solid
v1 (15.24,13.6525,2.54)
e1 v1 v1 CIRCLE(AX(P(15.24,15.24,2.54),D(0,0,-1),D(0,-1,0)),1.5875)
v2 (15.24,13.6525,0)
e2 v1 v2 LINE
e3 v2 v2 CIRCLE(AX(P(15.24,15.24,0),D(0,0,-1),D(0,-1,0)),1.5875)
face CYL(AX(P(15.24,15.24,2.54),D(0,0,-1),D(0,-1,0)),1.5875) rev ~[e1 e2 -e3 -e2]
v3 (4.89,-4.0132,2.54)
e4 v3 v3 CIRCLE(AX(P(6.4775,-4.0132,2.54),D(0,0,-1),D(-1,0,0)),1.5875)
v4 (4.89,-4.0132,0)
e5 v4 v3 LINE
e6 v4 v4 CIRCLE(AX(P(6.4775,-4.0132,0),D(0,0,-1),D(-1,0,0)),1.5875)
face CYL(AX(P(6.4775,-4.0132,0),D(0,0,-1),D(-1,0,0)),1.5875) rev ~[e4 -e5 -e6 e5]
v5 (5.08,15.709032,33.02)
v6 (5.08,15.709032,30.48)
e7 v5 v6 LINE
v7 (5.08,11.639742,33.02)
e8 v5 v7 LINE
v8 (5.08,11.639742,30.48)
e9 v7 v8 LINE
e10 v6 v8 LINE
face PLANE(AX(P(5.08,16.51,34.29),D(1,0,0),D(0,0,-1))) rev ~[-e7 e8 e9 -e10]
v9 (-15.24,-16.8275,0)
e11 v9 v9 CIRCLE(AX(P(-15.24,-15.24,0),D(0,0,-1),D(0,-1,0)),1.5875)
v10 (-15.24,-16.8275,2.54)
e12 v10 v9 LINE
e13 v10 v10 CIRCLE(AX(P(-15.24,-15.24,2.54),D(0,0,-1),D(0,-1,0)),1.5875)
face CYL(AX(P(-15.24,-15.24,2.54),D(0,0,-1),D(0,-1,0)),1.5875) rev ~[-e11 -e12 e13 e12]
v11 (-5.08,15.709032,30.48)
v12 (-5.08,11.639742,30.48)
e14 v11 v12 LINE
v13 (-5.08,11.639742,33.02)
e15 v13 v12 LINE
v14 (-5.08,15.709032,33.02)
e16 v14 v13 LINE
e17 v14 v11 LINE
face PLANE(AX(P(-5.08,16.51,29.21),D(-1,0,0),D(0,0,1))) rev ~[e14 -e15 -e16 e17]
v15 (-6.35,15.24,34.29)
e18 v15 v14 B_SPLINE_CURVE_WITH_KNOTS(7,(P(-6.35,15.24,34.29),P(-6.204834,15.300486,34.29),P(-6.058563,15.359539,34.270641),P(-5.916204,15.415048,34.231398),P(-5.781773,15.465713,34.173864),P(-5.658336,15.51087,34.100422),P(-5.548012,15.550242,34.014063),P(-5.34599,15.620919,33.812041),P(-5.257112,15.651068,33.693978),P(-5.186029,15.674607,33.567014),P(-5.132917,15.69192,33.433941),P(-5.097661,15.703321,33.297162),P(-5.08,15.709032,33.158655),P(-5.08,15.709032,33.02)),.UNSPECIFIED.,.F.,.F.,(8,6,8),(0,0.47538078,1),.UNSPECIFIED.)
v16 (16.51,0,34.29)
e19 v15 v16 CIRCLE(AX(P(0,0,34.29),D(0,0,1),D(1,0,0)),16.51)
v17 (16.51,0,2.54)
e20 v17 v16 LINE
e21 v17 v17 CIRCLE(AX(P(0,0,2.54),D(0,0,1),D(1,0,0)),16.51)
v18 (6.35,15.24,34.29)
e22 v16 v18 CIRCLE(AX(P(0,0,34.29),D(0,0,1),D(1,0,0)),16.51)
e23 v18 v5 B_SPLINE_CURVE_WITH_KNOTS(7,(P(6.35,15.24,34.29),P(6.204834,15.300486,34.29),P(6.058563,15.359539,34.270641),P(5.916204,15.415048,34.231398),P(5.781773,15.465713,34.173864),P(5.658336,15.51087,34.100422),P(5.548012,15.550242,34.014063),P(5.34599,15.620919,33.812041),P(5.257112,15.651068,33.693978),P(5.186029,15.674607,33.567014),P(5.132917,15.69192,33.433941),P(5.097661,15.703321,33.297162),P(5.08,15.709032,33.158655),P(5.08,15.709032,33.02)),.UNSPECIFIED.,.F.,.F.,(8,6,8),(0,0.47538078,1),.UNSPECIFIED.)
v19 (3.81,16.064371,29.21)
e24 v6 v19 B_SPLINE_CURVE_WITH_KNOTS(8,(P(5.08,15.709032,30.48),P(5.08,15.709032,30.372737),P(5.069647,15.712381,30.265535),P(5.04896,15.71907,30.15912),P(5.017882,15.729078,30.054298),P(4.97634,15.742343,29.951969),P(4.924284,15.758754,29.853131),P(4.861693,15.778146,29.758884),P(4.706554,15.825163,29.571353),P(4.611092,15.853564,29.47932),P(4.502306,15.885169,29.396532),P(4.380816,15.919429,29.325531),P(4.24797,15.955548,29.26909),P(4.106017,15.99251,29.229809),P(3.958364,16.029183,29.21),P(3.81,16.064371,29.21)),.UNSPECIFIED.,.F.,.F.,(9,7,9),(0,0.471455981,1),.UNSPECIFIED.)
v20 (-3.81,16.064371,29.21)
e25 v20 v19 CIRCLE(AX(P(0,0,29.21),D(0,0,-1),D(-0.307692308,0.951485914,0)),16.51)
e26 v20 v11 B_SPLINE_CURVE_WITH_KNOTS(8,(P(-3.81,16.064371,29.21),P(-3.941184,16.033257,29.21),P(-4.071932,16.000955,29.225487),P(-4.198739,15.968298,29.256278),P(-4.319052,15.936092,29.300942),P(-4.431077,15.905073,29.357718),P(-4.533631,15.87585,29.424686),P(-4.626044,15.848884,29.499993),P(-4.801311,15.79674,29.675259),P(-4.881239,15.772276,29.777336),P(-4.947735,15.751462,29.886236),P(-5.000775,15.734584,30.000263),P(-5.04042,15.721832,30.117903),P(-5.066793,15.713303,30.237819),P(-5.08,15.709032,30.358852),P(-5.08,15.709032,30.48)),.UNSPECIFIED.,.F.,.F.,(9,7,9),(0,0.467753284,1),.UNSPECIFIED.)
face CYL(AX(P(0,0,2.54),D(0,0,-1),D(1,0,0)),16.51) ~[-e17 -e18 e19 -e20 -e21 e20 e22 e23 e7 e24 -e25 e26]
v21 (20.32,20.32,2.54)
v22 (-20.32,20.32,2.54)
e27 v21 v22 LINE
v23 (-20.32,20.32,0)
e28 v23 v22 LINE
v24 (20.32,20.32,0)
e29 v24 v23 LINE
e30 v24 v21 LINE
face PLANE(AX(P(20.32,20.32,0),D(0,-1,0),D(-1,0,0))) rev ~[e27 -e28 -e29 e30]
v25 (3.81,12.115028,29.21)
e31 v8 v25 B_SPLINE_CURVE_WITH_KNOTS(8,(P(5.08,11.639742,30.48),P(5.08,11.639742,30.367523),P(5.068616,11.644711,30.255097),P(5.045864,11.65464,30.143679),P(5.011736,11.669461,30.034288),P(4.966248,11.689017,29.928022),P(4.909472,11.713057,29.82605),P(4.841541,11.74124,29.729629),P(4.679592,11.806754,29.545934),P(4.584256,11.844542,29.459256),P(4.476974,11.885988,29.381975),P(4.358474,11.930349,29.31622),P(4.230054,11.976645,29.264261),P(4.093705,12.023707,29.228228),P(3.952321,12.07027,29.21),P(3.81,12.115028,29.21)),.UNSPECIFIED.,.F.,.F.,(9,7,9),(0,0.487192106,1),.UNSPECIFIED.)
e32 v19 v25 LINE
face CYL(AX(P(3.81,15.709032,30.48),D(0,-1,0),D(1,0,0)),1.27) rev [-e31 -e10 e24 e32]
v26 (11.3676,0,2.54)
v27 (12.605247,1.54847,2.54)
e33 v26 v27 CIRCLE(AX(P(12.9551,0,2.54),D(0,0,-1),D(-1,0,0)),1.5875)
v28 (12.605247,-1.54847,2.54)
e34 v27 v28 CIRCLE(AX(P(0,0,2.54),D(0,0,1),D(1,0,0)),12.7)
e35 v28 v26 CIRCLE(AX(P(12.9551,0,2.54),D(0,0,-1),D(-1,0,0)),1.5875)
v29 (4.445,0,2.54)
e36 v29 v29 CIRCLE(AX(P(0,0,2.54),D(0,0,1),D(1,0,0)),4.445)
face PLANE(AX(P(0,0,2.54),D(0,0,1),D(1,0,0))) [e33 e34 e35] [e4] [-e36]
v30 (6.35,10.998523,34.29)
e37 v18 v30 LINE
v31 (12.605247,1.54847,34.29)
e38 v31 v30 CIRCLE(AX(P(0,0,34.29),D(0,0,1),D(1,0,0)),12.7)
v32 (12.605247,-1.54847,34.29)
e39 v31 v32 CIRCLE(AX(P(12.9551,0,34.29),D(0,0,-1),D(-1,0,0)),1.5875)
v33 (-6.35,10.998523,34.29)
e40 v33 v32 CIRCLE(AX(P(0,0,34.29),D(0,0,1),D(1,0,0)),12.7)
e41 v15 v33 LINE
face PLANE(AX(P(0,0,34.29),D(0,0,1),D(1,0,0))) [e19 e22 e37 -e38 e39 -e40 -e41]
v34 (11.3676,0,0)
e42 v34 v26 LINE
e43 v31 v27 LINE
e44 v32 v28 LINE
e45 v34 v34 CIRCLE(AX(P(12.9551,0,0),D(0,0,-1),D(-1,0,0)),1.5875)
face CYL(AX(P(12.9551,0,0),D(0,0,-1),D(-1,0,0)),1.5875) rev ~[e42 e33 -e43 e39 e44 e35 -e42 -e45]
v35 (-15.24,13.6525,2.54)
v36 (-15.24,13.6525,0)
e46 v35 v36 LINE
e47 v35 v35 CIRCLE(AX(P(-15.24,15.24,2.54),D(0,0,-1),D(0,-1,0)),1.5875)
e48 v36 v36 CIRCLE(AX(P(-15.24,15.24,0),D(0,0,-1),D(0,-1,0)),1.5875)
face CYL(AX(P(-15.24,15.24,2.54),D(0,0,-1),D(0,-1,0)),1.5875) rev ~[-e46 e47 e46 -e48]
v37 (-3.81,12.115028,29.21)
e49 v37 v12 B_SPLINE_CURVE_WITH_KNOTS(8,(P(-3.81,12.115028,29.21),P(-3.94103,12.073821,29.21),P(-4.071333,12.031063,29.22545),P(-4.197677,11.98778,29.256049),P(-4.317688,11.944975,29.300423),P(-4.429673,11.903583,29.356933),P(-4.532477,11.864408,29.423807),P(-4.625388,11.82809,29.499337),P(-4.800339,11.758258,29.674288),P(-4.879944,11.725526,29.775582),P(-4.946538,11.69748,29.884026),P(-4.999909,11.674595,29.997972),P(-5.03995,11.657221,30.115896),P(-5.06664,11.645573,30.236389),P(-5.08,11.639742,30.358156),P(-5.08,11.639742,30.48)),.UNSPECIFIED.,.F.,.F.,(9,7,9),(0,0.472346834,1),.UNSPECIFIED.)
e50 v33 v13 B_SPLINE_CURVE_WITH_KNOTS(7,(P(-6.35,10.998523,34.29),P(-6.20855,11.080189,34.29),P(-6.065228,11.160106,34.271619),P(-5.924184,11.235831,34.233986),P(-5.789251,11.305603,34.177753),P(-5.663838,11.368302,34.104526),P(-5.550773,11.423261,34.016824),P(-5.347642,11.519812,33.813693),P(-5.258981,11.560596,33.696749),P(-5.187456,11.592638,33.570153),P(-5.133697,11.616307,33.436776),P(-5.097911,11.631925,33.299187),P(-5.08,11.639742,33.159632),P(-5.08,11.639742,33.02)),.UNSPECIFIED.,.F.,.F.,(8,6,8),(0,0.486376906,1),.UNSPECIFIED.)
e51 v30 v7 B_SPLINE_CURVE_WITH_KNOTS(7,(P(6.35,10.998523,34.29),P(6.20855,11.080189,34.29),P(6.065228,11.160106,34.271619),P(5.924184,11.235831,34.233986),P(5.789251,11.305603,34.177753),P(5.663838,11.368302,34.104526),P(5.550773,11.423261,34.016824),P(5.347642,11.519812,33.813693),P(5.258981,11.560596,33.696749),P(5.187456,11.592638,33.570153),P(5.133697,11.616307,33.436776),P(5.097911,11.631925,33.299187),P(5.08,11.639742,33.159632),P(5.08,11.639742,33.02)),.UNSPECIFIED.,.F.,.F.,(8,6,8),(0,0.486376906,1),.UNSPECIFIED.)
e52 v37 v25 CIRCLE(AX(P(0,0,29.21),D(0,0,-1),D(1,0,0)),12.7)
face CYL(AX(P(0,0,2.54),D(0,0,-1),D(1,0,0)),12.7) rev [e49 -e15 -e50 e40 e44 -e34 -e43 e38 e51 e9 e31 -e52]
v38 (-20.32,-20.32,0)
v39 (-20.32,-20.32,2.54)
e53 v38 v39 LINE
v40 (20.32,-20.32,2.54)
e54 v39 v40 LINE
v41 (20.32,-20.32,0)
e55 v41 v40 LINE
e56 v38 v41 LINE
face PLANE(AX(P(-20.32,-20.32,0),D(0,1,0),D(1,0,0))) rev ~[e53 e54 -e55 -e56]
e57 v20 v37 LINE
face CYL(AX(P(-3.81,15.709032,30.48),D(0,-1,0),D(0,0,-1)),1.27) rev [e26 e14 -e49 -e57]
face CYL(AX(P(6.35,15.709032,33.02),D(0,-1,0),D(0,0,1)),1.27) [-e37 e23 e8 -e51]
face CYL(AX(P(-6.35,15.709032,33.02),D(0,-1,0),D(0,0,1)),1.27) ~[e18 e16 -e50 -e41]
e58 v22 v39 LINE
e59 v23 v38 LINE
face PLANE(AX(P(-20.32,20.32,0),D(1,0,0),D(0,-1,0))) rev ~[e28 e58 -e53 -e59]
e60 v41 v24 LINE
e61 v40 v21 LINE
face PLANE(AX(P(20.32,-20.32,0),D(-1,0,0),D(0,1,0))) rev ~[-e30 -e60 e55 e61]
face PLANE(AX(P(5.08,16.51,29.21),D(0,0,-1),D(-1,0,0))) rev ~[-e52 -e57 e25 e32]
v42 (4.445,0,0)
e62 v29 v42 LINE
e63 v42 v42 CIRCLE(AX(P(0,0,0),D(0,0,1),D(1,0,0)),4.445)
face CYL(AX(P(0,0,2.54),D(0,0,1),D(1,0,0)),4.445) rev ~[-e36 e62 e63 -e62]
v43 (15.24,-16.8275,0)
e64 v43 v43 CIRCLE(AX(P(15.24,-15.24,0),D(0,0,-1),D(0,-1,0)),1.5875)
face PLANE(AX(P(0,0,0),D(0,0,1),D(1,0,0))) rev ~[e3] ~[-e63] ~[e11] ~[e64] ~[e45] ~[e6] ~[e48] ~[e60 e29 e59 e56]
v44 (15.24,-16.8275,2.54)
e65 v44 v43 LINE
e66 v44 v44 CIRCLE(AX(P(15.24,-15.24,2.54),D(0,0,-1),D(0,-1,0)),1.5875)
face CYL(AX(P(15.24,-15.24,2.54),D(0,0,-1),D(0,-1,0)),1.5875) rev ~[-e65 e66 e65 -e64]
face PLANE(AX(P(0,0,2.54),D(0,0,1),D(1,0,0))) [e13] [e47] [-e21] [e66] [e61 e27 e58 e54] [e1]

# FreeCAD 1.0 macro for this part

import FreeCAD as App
import Part
import Sketcher
Q = App.Units.Quantity


def edges_at(feature, points):
    """Names of the edges that pass closest to the given points."""
    edges = feature.Shape.Edges
    near = lambda p: min(range(len(edges)), key=lambda i: edges[i].distToShape(Part.Vertex(*p))[0])
    return sorted({f"Edge{near(p) + 1}" for p in points})


def add_polygon(sketch, points):
    """Adds a closed chain of lines whose ends are joined by coincident constraints."""
    first, n = sketch.GeometryCount, len(points)
    for a, b in zip(points, points[1:] + points[:1]):
        sketch.addGeometry(Part.LineSegment(App.Vector(*a, 0), App.Vector(*b, 0)), False)
    for i in range(n):
        sketch.addConstraint(Sketcher.Constraint("Coincident", first + i, 2, first + (i + 1) % n, 1))

doc = App.newDocument("Part")
body = doc.addObject("PartDesign::Body", "Body")

# Sketch on XY plane
sketch1 = body.newObject("Sketcher::SketchObject", "Sketch")
sketch1.AttachmentSupport = (doc.getObject("XY_Plane"), [""])
sketch1.MapMode = "FlatFace"
add_polygon(sketch1, [(20.32, -20.32), (20.32, 20.32), (-20.32, 20.32), (-20.32, -20.32)])  # lines 0-3
sketch1.addConstraint(Sketcher.Constraint("Vertical", 0))
sketch1.addConstraint(Sketcher.Constraint("Horizontal", 1))
sketch1.addConstraint(Sketcher.Constraint("Vertical", 2))
sketch1.addConstraint(Sketcher.Constraint("Horizontal", 3))
sketch1.addConstraint(Sketcher.Constraint("Symmetric", 0, 2, 2, 2, -1, 1))
sketch1.addConstraint(Sketcher.Constraint("Equal", 3, 0))
sketch1.addConstraint(Sketcher.Constraint("DistanceX", 1, 2, 1, 1, Q("1.6 in")))
pad1 = body.newObject("PartDesign::Pad", "Pad")
pad1.Profile = sketch1
pad1.Length = Q("0.1 in")

# Sketch on XY plane
sketch2 = body.newObject("Sketcher::SketchObject", "Sketch001")
sketch2.AttachmentSupport = (doc.getObject("XY_Plane"), [""])
sketch2.MapMode = "FlatFace"
sketch2.AttachmentOffset = App.Placement(App.Vector(0, 0, 0.1 * 25.4), App.Rotation())
sketch2.addGeometry(Part.Circle(App.Vector(0, 0, 0), App.Vector(0, 0, 1), 16.51), False)
sketch2.addGeometry(Part.Circle(App.Vector(0, 0, 0), App.Vector(0, 0, 1), 12.7), False)
sketch2.addConstraint(Sketcher.Constraint("Coincident", 0, 3, -1, 1))
sketch2.addConstraint(Sketcher.Constraint("Coincident", 1, 3, -1, 1))
sketch2.addConstraint(Sketcher.Constraint("Diameter", 1, Q("1 in")))
sketch2.addConstraint(Sketcher.Constraint("Diameter", 0, Q("1.3 in")))
pad2 = body.newObject("PartDesign::Pad", "Pad001")
pad2.Profile = sketch2
pad2.Length = Q("1.25 in")

# Sketch on XY plane
sketch3 = body.newObject("Sketcher::SketchObject", "Sketch002")
sketch3.AttachmentSupport = (doc.getObject("XY_Plane"), [""])
sketch3.MapMode = "FlatFace"
sketch3.AttachmentOffset = App.Placement(App.Vector(0, 0, 0.1 * 25.4), App.Rotation())
sketch3.addGeometry(Part.Circle(App.Vector(-15.24, -15.24, 0), App.Vector(0, 0, 1), 1.5875), False)
sketch3.addGeometry(Part.Circle(App.Vector(15.24, -15.24, 0), App.Vector(0, 0, 1), 1.5875), False)
sketch3.addGeometry(Part.Circle(App.Vector(15.24, 15.24, 0), App.Vector(0, 0, 1), 1.5875), False)
sketch3.addGeometry(Part.Circle(App.Vector(-15.24, 15.24, 0), App.Vector(0, 0, 1), 1.5875), False)
sketch3.addConstraint(Sketcher.Constraint("Equal", 0, 1))
sketch3.addConstraint(Sketcher.Constraint("Equal", 1, 2))
sketch3.addConstraint(Sketcher.Constraint("Equal", 2, 3))
sketch3.addConstraint(Sketcher.Constraint("Symmetric", 0, 3, 2, 3, -1, 1))
sketch3.addConstraint(Sketcher.Constraint("Symmetric", 1, 3, 3, 3, -1, 1))
sketch3.addConstraint(Sketcher.Constraint("Symmetric", 0, 3, 1, 3, -2))
sketch3.addConstraint(Sketcher.Constraint("Diameter", 0, Q("0.125 in")))
sketch3.addConstraint(Sketcher.Constraint("DistanceX", 0, 3, -1, 1, Q("0.6 in")))
sketch3.addConstraint(Sketcher.Constraint("DistanceY", 0, 3, -1, 1, Q("0.6 in")))
doc.recompute()
hole = body.newObject("PartDesign::Hole", "Hole")
hole.Profile = sketch3
hole.ThreadType = "None"
hole.Diameter = Q("0.125 in")
hole.DepthType = "Dimension"
hole.Depth = Q("0.125 in")
hole.DrillPoint = "Angled"
hole.DrillPointAngle = 118

# Sketch on XZ plane
sketch4 = body.newObject("Sketcher::SketchObject", "Sketch003")
sketch4.AttachmentSupport = (doc.getObject("XZ_Plane"), [""])
sketch4.MapMode = "FlatFace"
sketch4.AttachmentOffset = App.Placement(App.Vector(0, 0, -0.65 * 25.4), App.Rotation())
add_polygon(sketch4, [(5.08, 34.29), (5.08, 29.21), (-5.08, 29.21), (-5.08, 34.29)])  # lines 0-3
sketch4.addConstraint(Sketcher.Constraint("Vertical", 0))
sketch4.addConstraint(Sketcher.Constraint("Horizontal", 1))
sketch4.addConstraint(Sketcher.Constraint("Vertical", 2))
sketch4.addConstraint(Sketcher.Constraint("Horizontal", 3))
sketch4.addConstraint(Sketcher.Constraint("DistanceX", 1, 2, 1, 1, Q("0.4 in")))
sketch4.addConstraint(Sketcher.Constraint("DistanceY", 0, 2, 0, 1, Q("0.2 in")))
sketch4.addConstraint(Sketcher.Constraint("DistanceX", -1, 1, 0, 2, Q("0.2 in")))
sketch4.addConstraint(Sketcher.Constraint("DistanceY", -1, 1, 0, 2, Q("1.15 in")))
pocket1 = body.newObject("PartDesign::Pocket", "Pocket")
pocket1.Profile = sketch4
pocket1.Length = Q("0.4 in")
pocket1.Reversed = True

# Sketch on XY plane
sketch5 = body.newObject("Sketcher::SketchObject", "Sketch004")
sketch5.AttachmentSupport = (doc.getObject("XY_Plane"), [""])
sketch5.MapMode = "FlatFace"
sketch5.AttachmentOffset = App.Placement(App.Vector(0, 0, 0.1 * 25.4), App.Rotation())
sketch5.addGeometry(Part.Circle(App.Vector(0, 0, 0), App.Vector(0, 0, 1), 4.445), False)
sketch5.addConstraint(Sketcher.Constraint("Coincident", 0, 3, -1, 1))
sketch5.addConstraint(Sketcher.Constraint("Diameter", 0, Q("0.35 in")))
pocket2 = body.newObject("PartDesign::Pocket", "Pocket001")
pocket2.Profile = sketch5
pocket2.Type = "ThroughAll"
doc.recompute()

fillet = body.newObject("PartDesign::Fillet", "Fillet")
fillet.Base = (pocket2, edges_at(pocket2, [
    (-5.08, 13.674, 29.21),
    (-5.08, 13.674, 34.29),
    (5.08, 13.674, 34.29),
    (5.08, 13.674, 29.21),
]))
fillet.Radius = Q("0.05 in")

# Sketch on XY plane
sketch6 = body.newObject("Sketcher::SketchObject", "Sketch005")
sketch6.AttachmentSupport = (doc.getObject("XY_Plane"), [""])
sketch6.MapMode = "FlatFace"
sketch6.addGeometry(Part.Circle(App.Vector(6.4775, -4.0132, 0), App.Vector(0, 0, 1), 1.5875), False)
sketch6.addGeometry(Part.Circle(App.Vector(12.9551, 0, 0), App.Vector(0, 0, 1), 1.5875), False)
sketch6.addConstraint(Sketcher.Constraint("Equal", 0, 1))
sketch6.addConstraint(Sketcher.Constraint("PointOnObject", 1, 3, -1))
sketch6.addConstraint(Sketcher.Constraint("Diameter", 0, Q("0.125 in")))
sketch6.addConstraint(Sketcher.Constraint("DistanceY", 0, 3, -1, 1, Q("0.158 in")))
sketch6.addConstraint(Sketcher.Constraint("DistanceX", -1, 1, 0, 3, Q("6.4775 mm")))
sketch6.addConstraint(Sketcher.Constraint("DistanceX", -1, 1, 1, 3, Q("12.955 mm")))
pocket3 = body.newObject("PartDesign::Pocket", "Pocket002")
pocket3.Profile = sketch6
pocket3.Type = "ThroughAll"
pocket3.Reversed = True

doc.recompute()
